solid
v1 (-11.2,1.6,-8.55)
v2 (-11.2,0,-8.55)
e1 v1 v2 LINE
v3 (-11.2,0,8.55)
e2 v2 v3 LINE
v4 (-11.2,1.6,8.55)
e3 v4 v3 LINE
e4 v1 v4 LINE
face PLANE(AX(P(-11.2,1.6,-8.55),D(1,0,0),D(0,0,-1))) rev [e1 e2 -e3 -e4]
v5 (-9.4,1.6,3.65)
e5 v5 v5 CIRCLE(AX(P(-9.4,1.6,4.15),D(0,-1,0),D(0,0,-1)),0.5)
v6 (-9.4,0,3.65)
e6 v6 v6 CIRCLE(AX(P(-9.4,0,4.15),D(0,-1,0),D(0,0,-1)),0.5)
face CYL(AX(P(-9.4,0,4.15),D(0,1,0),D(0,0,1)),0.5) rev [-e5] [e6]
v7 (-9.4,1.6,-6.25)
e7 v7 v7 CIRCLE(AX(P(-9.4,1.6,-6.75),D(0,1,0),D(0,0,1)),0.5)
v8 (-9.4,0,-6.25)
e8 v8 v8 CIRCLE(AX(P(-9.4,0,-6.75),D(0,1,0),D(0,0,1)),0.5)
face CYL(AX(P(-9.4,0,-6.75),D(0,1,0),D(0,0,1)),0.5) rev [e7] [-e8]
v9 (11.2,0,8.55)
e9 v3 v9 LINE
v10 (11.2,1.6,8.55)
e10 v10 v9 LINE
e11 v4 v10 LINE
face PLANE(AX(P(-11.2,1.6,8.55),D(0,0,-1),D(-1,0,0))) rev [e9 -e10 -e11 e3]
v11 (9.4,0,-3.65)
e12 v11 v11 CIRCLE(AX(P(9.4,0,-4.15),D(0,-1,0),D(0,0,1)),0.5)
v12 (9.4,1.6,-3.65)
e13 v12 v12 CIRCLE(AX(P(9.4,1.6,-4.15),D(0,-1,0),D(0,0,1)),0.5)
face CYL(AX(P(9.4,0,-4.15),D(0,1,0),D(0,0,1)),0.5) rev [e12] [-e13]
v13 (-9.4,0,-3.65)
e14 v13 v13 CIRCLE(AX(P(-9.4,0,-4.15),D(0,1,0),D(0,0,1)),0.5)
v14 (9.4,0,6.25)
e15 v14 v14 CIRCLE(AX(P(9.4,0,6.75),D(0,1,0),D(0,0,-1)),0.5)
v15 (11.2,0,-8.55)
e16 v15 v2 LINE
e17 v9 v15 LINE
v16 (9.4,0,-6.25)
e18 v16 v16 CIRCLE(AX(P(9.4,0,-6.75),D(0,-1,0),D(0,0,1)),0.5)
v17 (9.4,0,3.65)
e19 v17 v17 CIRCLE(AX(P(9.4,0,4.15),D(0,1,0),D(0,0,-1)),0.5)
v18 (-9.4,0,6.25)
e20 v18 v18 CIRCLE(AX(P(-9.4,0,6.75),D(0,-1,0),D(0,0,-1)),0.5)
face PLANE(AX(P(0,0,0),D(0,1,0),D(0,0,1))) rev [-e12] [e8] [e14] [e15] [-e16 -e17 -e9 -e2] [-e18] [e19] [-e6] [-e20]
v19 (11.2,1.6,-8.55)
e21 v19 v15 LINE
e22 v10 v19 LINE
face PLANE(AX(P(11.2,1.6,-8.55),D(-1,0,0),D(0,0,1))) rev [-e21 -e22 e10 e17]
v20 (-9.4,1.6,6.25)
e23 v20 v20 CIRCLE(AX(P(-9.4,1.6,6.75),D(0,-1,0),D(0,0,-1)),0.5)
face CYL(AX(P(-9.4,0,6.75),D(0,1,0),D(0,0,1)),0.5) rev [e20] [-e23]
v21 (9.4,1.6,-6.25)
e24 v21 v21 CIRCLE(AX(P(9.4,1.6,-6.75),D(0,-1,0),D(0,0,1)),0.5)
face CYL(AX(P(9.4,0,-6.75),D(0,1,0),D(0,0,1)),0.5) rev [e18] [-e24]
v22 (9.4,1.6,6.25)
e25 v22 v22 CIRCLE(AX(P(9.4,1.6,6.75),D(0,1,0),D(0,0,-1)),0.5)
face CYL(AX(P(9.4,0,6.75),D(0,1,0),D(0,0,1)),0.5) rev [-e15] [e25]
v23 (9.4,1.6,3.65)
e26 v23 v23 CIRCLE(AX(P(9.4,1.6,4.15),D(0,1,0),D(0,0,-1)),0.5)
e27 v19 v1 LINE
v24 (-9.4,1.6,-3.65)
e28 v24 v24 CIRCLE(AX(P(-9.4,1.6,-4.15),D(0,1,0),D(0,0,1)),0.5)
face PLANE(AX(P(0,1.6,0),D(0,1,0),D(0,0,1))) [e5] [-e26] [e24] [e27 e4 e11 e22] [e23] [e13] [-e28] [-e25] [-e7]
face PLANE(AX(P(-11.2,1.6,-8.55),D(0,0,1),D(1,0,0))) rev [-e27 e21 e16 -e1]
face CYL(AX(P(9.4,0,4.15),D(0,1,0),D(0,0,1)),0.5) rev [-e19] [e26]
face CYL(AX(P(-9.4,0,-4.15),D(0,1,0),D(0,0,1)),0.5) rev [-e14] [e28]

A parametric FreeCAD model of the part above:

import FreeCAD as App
import Part
import Sketcher
from FreeCAD import Vector


def add_polygon(sketch, points):
    """Adds a closed chain of lines whose ends are joined by coincident constraints."""
    first, n = sketch.GeometryCount, len(points)
    for a, b in zip(points, points[1:] + points[:1]):
        sketch.addGeometry(Part.LineSegment(App.Vector(*a, 0), App.Vector(*b, 0)), False)
    for i in range(n):
        sketch.addConstraint(Sketcher.Constraint("Coincident", first + i, 2, first + (i + 1) % n, 1))

doc = App.newDocument("Part")
body = doc.addObject("PartDesign::Body", "Body")

# Sketch on XZ plane
sketch1 = doc.addObject("Sketcher::SketchObject", "Sketch")
body.addObject(sketch1)
sketch1.AttachmentSupport = (doc.XZ_Plane, [""])
sketch1.MapMode = "FlatFace"
add_polygon(sketch1, [(-11.2, -8.55), (-11.2, 8.55), (11.2, 8.55), (11.2, -8.55)])  # lines 0-3
sketch1.addConstraint(Sketcher.Constraint("Vertical", 0))
sketch1.addConstraint(Sketcher.Constraint("Horizontal", 1))
sketch1.addConstraint(Sketcher.Constraint("Vertical", 2))
sketch1.addConstraint(Sketcher.Constraint("Horizontal", 3))
sketch1.addConstraint(Sketcher.Constraint("Symmetric", 0, 2, 2, 2, -1, 1))
sketch1.addConstraint(Sketcher.Constraint("DistanceX", 1, 1, 1, 2, 22.4))
sketch1.addConstraint(Sketcher.Constraint("DistanceY", 0, 1, 0, 2, 17.1))
pad1 = doc.addObject("PartDesign::Pad", "Pad")
body.addObject(pad1)
pad1.Profile = sketch1
pad1.Length = 1.6
pad1.Reversed = True

# Sketch on XZ plane
sketch2 = doc.addObject("Sketcher::SketchObject", "Sketch001")
body.addObject(sketch2)
sketch2.AttachmentSupport = (doc.XZ_Plane, [""])
sketch2.MapMode = "FlatFace"
sketch2.AttachmentOffset = App.Placement(Vector(0, 0, -1.6), App.Rotation())
sketch2.addGeometry(Part.Circle(Vector(-9.4, -6.75, 0), Vector(0, 0, 1), 0.5), False)
sketch2.addGeometry(Part.Circle(Vector(-9.4, -4.15, 0), Vector(0, 0, 1), 0.5), False)
sketch2.addConstraint(Sketcher.Constraint("Equal", 0, 1))
sketch2.addConstraint(Sketcher.Constraint("Vertical", 0, 3, 1, 3))
sketch2.addConstraint(Sketcher.Constraint("Diameter", 0, 1.0))
sketch2.addConstraint(Sketcher.Constraint("DistanceX", 0, 3, -1, 1, 9.4))
sketch2.addConstraint(Sketcher.Constraint("DistanceY", 0, 3, 1, 3, 2.6))
sketch2.addConstraint(Sketcher.Constraint("DistanceY", 0, 3, -1, 1, 6.75))
pocket1 = doc.addObject("PartDesign::Pocket", "Pocket")
body.addObject(pocket1)
pocket1.Profile = sketch2
pocket1.Type = "ThroughAll"
pocket1.Reversed = True
doc.recompute()

mirrored = doc.addObject("PartDesign::Mirrored", "Mirrored")
body.addObject(mirrored)
mirrored.Originals = [pocket1]
mirrored.MirrorPlane = (doc.YZ_Plane, [""])
body.Tip = mirrored
doc.recompute()

mirrored2 = doc.addObject("PartDesign::Mirrored", "Mirrored001")
body.addObject(mirrored2)
mirrored2.Originals = [pocket1]
mirrored2.MirrorPlane = (doc.XY_Plane, [""])
body.Tip = mirrored2

# Sketch on XZ plane
sketch3 = doc.addObject("Sketcher::SketchObject", "Sketch002")
body.addObject(sketch3)
sketch3.AttachmentSupport = (doc.XZ_Plane, [""])
sketch3.MapMode = "FlatFace"
sketch3.AttachmentOffset = App.Placement(Vector(0, 0, -1.6), App.Rotation())
sketch3.addGeometry(Part.Circle(Vector(9.4, 6.75, 0), Vector(0, 0, 1), 0.5), False)
sketch3.addGeometry(Part.Circle(Vector(9.4, 4.15, 0), Vector(0, 0, 1), 0.5), False)
sketch3.addConstraint(Sketcher.Constraint("Equal", 0, 1))
sketch3.addConstraint(Sketcher.Constraint("Vertical", 0, 3, 1, 3))
sketch3.addConstraint(Sketcher.Constraint("Diameter", 0, 1.0))
sketch3.addConstraint(Sketcher.Constraint("DistanceX", -1, 1, 0, 3, 9.4))
sketch3.addConstraint(Sketcher.Constraint("DistanceY", 1, 3, 0, 3, 2.6))
sketch3.addConstraint(Sketcher.Constraint("DistanceY", -1, 1, 0, 3, 6.75))
pocket2 = doc.addObject("PartDesign::Pocket", "Pocket001")
body.addObject(pocket2)
pocket2.Profile = sketch3
pocket2.Type = "ThroughAll"
pocket2.Reversed = True

doc.recompute()
